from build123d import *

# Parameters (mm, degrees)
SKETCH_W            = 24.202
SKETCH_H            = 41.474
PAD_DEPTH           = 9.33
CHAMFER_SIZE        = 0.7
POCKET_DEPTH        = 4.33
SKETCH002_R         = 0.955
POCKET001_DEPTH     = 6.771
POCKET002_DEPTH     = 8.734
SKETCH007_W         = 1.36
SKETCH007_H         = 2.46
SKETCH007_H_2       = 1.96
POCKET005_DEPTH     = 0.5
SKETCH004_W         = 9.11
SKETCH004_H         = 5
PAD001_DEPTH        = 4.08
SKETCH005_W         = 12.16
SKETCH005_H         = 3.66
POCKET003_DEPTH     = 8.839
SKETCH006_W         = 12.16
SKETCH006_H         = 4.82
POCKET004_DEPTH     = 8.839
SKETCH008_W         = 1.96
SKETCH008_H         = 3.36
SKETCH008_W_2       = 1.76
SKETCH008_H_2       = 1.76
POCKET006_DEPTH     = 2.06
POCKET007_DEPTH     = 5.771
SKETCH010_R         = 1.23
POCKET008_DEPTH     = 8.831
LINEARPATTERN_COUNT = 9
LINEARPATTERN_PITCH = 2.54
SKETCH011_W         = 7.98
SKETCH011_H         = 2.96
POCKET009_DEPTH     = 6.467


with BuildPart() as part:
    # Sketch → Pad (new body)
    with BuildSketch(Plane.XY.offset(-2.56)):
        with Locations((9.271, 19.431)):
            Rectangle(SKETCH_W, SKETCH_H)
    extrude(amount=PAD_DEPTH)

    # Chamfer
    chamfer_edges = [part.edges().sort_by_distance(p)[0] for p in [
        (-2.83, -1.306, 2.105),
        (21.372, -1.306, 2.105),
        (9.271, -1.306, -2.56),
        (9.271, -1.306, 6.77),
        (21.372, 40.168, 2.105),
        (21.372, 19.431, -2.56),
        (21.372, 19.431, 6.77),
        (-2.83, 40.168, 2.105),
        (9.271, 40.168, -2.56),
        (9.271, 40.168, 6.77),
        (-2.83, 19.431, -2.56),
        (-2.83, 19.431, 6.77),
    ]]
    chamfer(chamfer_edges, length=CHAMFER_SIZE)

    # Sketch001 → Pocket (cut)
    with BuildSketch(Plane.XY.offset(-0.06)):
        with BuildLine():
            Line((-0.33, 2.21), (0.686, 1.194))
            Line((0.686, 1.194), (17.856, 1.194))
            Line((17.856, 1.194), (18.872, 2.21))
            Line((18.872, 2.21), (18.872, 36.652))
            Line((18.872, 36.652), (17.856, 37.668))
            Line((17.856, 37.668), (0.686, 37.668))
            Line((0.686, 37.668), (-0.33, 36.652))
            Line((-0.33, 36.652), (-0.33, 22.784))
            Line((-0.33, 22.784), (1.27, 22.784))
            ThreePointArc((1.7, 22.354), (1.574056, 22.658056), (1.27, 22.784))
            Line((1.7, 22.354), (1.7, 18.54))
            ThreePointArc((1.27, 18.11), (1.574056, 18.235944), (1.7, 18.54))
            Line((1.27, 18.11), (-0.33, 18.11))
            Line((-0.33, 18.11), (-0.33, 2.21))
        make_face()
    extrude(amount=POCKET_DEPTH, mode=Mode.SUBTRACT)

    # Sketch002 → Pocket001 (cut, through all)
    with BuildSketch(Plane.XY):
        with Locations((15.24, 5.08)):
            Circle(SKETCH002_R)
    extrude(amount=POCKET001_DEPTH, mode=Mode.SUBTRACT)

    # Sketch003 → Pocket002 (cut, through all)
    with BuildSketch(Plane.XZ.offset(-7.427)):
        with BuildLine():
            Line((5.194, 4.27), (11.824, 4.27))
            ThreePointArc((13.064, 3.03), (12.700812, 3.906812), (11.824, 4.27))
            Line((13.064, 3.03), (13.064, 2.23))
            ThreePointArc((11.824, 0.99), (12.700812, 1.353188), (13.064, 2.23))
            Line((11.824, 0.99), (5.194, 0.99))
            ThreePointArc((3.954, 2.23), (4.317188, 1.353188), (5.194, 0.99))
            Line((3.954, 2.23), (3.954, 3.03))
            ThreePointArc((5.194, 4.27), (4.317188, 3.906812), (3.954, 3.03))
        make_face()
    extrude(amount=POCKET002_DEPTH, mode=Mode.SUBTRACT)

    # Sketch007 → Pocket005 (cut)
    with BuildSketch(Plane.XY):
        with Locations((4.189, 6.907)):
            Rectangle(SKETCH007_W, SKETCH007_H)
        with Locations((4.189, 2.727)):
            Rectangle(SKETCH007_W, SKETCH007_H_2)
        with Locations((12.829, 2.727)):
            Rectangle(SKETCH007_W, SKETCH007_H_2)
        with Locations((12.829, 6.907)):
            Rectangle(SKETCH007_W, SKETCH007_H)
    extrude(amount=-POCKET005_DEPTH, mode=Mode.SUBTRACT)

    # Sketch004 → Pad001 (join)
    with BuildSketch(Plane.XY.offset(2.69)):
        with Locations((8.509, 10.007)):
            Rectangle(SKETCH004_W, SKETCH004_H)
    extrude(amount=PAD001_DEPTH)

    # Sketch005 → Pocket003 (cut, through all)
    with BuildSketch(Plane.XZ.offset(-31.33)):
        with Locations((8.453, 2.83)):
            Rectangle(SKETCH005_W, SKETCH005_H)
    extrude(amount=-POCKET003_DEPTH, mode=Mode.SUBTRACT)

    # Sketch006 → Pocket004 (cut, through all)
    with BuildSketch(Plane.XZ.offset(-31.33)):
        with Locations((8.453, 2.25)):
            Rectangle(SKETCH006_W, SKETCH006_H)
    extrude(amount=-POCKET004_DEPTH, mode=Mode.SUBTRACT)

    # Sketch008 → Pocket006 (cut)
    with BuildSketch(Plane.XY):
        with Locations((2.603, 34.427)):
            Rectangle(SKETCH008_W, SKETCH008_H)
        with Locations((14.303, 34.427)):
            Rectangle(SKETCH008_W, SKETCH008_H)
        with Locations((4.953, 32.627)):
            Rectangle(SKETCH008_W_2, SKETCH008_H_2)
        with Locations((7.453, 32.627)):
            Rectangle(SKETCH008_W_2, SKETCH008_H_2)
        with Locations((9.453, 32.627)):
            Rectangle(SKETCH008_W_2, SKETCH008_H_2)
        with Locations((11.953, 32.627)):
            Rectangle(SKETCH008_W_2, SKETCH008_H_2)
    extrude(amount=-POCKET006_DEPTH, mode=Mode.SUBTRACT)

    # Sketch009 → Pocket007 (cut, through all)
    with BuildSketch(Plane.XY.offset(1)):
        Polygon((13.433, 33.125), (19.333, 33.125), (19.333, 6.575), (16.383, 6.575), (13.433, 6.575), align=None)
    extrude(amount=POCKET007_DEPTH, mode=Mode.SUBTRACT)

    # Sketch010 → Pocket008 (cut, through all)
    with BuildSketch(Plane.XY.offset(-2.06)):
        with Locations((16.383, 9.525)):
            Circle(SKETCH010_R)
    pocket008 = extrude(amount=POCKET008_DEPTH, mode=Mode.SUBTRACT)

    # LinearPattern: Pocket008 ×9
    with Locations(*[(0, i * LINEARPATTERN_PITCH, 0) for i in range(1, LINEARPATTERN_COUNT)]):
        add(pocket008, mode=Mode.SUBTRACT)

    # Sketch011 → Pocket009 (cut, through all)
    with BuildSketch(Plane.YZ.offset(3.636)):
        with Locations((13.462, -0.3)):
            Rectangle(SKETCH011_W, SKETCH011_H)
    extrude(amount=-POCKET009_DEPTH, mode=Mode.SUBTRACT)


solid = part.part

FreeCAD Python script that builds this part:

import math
import FreeCAD as App
import Part
import Sketcher
from FreeCAD import Vector

doc = App.newDocument("Part")
body = doc.addObject("PartDesign::Body", "Body")

# Sketch on XY plane
sketch1 = body.newObject("Sketcher::SketchObject", "Sketch")
sketch1.AttachmentSupport = (doc.getObject("XY_Plane"), [""])
sketch1.MapMode = "FlatFace"
sketch1.AttachmentOffset = App.Placement(Vector(0, 0, -2.56), App.Rotation())
sketch1.addGeometry(Part.LineSegment(Vector(-3, 40, 0), Vector(-3, -1, 0)), False)
sketch1.addGeometry(Part.LineSegment(Vector(-3, -1, 0), Vector(21, -1, 0)), False)
sketch1.addGeometry(Part.LineSegment(Vector(21, -1, 0), Vector(21, 40, 0)), False)
sketch1.addGeometry(Part.LineSegment(Vector(21, 40, 0), Vector(-3, 40, 0)), False)
sketch1.addConstraint(Sketcher.Constraint("Coincident", 0, 2, 1, 1))
sketch1.addConstraint(Sketcher.Constraint("Coincident", 1, 2, 2, 1))
sketch1.addConstraint(Sketcher.Constraint("Coincident", 2, 2, 3, 1))
sketch1.addConstraint(Sketcher.Constraint("Coincident", 3, 2, 0, 1))
sketch1.addConstraint(Sketcher.Constraint("Vertical", 0))
sketch1.addConstraint(Sketcher.Constraint("Horizontal", 1))
sketch1.addConstraint(Sketcher.Constraint("Vertical", 2))
sketch1.addConstraint(Sketcher.Constraint("Horizontal", 3))
sketch1.addConstraint(Sketcher.Constraint("DistanceX", 1, 1, 1, 2, 24.202))
sketch1.addConstraint(Sketcher.Constraint("DistanceY", 0, 2, 0, 1, 41.474))
sketch1.addConstraint(Sketcher.Constraint("DistanceX", 0, 2, -1, 1, 2.83))
sketch1.addConstraint(Sketcher.Constraint("DistanceY", 0, 2, -1, 1, 1.306))
pad1 = body.newObject("PartDesign::Pad", "Pad")
pad1.Profile = sketch1
pad1.Length = 9.33
doc.recompute()

chamfer = body.newObject("PartDesign::Chamfer", "Chamfer")
chamfer.Base = (pad1, ["Edge1"])
chamfer.UseAllEdges = True
chamfer.Size = 0.7

# Sketch on XY plane
sketch2 = body.newObject("Sketcher::SketchObject", "Sketch001")
sketch2.AttachmentSupport = (doc.getObject("XY_Plane"), [""])
sketch2.MapMode = "FlatFace"
sketch2.AttachmentOffset = App.Placement(Vector(0, 0, -0.06), App.Rotation())
sketch2.addGeometry(Part.LineSegment(Vector(-0.33, 2.21, 0), Vector(0.69, 1.19, 0)), False)
sketch2.addGeometry(Part.LineSegment(Vector(0.69, 1.19, 0), Vector(17.86, 1.19, 0)), False)
sketch2.addGeometry(Part.LineSegment(Vector(17.86, 1.19, 0), Vector(18.87, 2.21, 0)), False)
sketch2.addGeometry(Part.LineSegment(Vector(18.87, 2.21, 0), Vector(18.87, 36.65, 0)), False)
sketch2.addGeometry(Part.LineSegment(Vector(18.87, 36.65, 0), Vector(17.86, 37.67, 0)), False)
sketch2.addGeometry(Part.LineSegment(Vector(17.86, 37.67, 0), Vector(0.69, 37.67, 0)), False)
sketch2.addGeometry(Part.LineSegment(Vector(0.69, 37.67, 0), Vector(-0.33, 36.65, 0)), False)
sketch2.addGeometry(Part.LineSegment(Vector(-0.33, 36.65, 0), Vector(-0.33, 22.78, 0)), False)
sketch2.addGeometry(Part.LineSegment(Vector(-0.33, 22.78, 0), Vector(1.27, 22.78, 0)), False)
sketch2.addGeometry(Part.ArcOfCircle(Part.Circle(Vector(1.27, 22.35, 0), Vector(0, 0, 1), 0.43), math.radians(0), math.radians(90)), False)
sketch2.addGeometry(Part.LineSegment(Vector(1.7, 22.35, 0), Vector(1.7, 18.54, 0)), False)
sketch2.addGeometry(Part.ArcOfCircle(Part.Circle(Vector(1.27, 18.54, 0), Vector(0, 0, 1), 0.43), math.radians(-90), math.radians(0)), False)
sketch2.addGeometry(Part.LineSegment(Vector(1.27, 18.11, 0), Vector(-0.33, 18.11, 0)), False)
sketch2.addGeometry(Part.LineSegment(Vector(-0.33, 18.11, 0), Vector(-0.33, 2.21, 0)), False)
sketch2.addConstraint(Sketcher.Constraint("Coincident", 0, 2, 1, 1))
sketch2.addConstraint(Sketcher.Constraint("Coincident", 1, 2, 2, 1))
sketch2.addConstraint(Sketcher.Constraint("Coincident", 2, 2, 3, 1))
sketch2.addConstraint(Sketcher.Constraint("Coincident", 3, 2, 4, 1))
sketch2.addConstraint(Sketcher.Constraint("Coincident", 4, 2, 5, 1))
sketch2.addConstraint(Sketcher.Constraint("Coincident", 5, 2, 6, 1))
sketch2.addConstraint(Sketcher.Constraint("Coincident", 6, 2, 7, 1))
sketch2.addConstraint(Sketcher.Constraint("Coincident", 7, 2, 8, 1))
sketch2.addConstraint(Sketcher.Constraint("Tangent", 8, 2, 9, 2))
sketch2.addConstraint(Sketcher.Constraint("Tangent", 9, 1, 10, 1))
sketch2.addConstraint(Sketcher.Constraint("Tangent", 10, 2, 11, 2))
sketch2.addConstraint(Sketcher.Constraint("Tangent", 11, 1, 12, 1))
sketch2.addConstraint(Sketcher.Constraint("Coincident", 12, 2, 13, 1))
sketch2.addConstraint(Sketcher.Constraint("Coincident", 13, 2, 0, 1))
sketch2.addConstraint(Sketcher.Constraint("Horizontal", 1))
sketch2.addConstraint(Sketcher.Constraint("Vertical", 3))
sketch2.addConstraint(Sketcher.Constraint("Horizontal", 5))
sketch2.addConstraint(Sketcher.Constraint("Vertical", 7))
sketch2.addConstraint(Sketcher.Constraint("Horizontal", 8))
sketch2.addConstraint(Sketcher.Constraint("Vertical", 10))
sketch2.addConstraint(Sketcher.Constraint("Horizontal", 12))
sketch2.addConstraint(Sketcher.Constraint("Vertical", 13))
sketch2.addConstraint(Sketcher.Constraint("Equal", 9, 11))
sketch2.addConstraint(Sketcher.Constraint("Perpendicular", 0, 2))
sketch2.addConstraint(Sketcher.Constraint("Perpendicular", 2, 4))
sketch2.addConstraint(Sketcher.Constraint("Perpendicular", 4, 6))
sketch2.addConstraint(Sketcher.Constraint("Horizontal", 3, 2, 6, 2))
sketch2.addConstraint(Sketcher.Constraint("Horizontal", 2, 2, 13, 2))
sketch2.addConstraint(Sketcher.Constraint("Vertical", 1, 2, 4, 2))
sketch2.addConstraint(Sketcher.Constraint("Vertical", 0, 2, 5, 2))
sketch2.addConstraint(Sketcher.Constraint("Vertical", 7, 2, 12, 2))
sketch2.addConstraint(Sketcher.Constraint("Radius", 9, 0.43))
sketch2.addConstraint(Sketcher.Constraint("DistanceX", 8, 1, 8, 2, 1.6))
sketch2.addConstraint(Sketcher.Constraint("DistanceY", 13, 2, 13, 1, 15.9))
sketch2.addConstraint(Sketcher.Constraint("DistanceX", 1, 1, 1, 2, 17.17))
sketch2.addConstraint(Sketcher.Constraint("DistanceX", -1, 1, 9, 1, 1.7))
sketch2.addConstraint(Sketcher.Constraint("DistanceY", 3, 1, 3, 2, 34.442))
sketch2.addConstraint(Sketcher.Constraint("DistanceY", 7, 2, 7, 1, 13.868))
sketch2.addConstraint(Sketcher.Constraint("DistanceY", -1, 1, 11, 3, 18.54))
sketch2.addConstraint(Sketcher.Constraint("DistanceY", 0, 2, 9, 3, 21.16))
pocket1 = body.newObject("PartDesign::Pocket", "Pocket")
pocket1.Profile = sketch2
pocket1.Length = 4.33
pocket1.Reversed = True

# Sketch on XY plane
sketch3 = body.newObject("Sketcher::SketchObject", "Sketch002")
sketch3.AttachmentSupport = (doc.getObject("XY_Plane"), [""])
sketch3.MapMode = "FlatFace"
sketch3.addGeometry(Part.Circle(Vector(15.2, 5.1, 0), Vector(0, 0, 1), 1), False)
sketch3.addConstraint(Sketcher.Constraint("Diameter", 0, 1.91))
sketch3.addConstraint(Sketcher.Constraint("DistanceX", -1, 1, 0, 3, 15.24))
sketch3.addConstraint(Sketcher.Constraint("DistanceY", -1, 1, 0, 3, 5.08))
pocket2 = body.newObject("PartDesign::Pocket", "Pocket001")
pocket2.Profile = sketch3
pocket2.Type = "ThroughAll"
pocket2.Reversed = True

# Sketch on XZ plane
sketch4 = body.newObject("Sketcher::SketchObject", "Sketch003")
sketch4.AttachmentSupport = (doc.getObject("XZ_Plane"), [""])
sketch4.MapMode = "FlatFace"
sketch4.AttachmentOffset = App.Placement(Vector(0, 0, -7.427), App.Rotation())
sketch4.addGeometry(Part.LineSegment(Vector(11.8, 4.3, 0), Vector(5.2, 4.3, 0)), False)
sketch4.addGeometry(Part.ArcOfCircle(Part.Circle(Vector(5.2, 3, 0), Vector(0, 0, 1), 1.2), math.radians(90), math.radians(180)), False)
sketch4.addGeometry(Part.LineSegment(Vector(4, 3, 0), Vector(4, 2.2, 0)), False)
sketch4.addGeometry(Part.ArcOfCircle(Part.Circle(Vector(5.2, 2.2, 0), Vector(0, 0, 1), 1.2), math.radians(-180), math.radians(-90)), False)
sketch4.addGeometry(Part.LineSegment(Vector(5.2, 1, 0), Vector(11.8, 1, 0)), False)
sketch4.addGeometry(Part.ArcOfCircle(Part.Circle(Vector(11.8, 2.2, 0), Vector(0, 0, 1), 1.2), math.radians(-90), math.radians(0)), False)
sketch4.addGeometry(Part.LineSegment(Vector(13.1, 2.2, 0), Vector(13.1, 3, 0)), False)
sketch4.addGeometry(Part.ArcOfCircle(Part.Circle(Vector(11.8, 3, 0), Vector(0, 0, 1), 1.2), math.radians(0), math.radians(90)), False)
sketch4.addConstraint(Sketcher.Constraint("Tangent", 0, 2, 1, 1))
sketch4.addConstraint(Sketcher.Constraint("Tangent", 1, 2, 2, 1))
sketch4.addConstraint(Sketcher.Constraint("Tangent", 2, 2, 3, 1))
sketch4.addConstraint(Sketcher.Constraint("Tangent", 3, 2, 4, 1))
sketch4.addConstraint(Sketcher.Constraint("Tangent", 4, 2, 5, 1))
sketch4.addConstraint(Sketcher.Constraint("Tangent", 5, 2, 6, 1))
sketch4.addConstraint(Sketcher.Constraint("Tangent", 6, 2, 7, 1))
sketch4.addConstraint(Sketcher.Constraint("Tangent", 7, 2, 0, 1))
sketch4.addConstraint(Sketcher.Constraint("Horizontal", 0))
sketch4.addConstraint(Sketcher.Constraint("Vertical", 2))
sketch4.addConstraint(Sketcher.Constraint("Horizontal", 4))
sketch4.addConstraint(Sketcher.Constraint("Vertical", 6))
sketch4.addConstraint(Sketcher.Constraint("Equal", 1, 3))
sketch4.addConstraint(Sketcher.Constraint("Equal", 3, 5))
sketch4.addConstraint(Sketcher.Constraint("Equal", 5, 7))
sketch4.addConstraint(Sketcher.Constraint("Radius", 1, 1.240001))
sketch4.addConstraint(Sketcher.Constraint("DistanceY", 2, 2, 2, 1, 0.8))
sketch4.addConstraint(Sketcher.Constraint("DistanceX", 0, 2, 0, 1, 6.63))
sketch4.addConstraint(Sketcher.Constraint("DistanceY", -1, 1, 1, 3, 3.029999))
sketch4.addConstraint(Sketcher.Constraint("DistanceX", -1, 1, 1, 3, 5.194001))
pocket3 = body.newObject("PartDesign::Pocket", "Pocket002")
pocket3.Profile = sketch4
pocket3.Type = "ThroughAll"
pocket3.Reversed = True

# Sketch on XY plane
sketch5 = body.newObject("Sketcher::SketchObject", "Sketch004")
sketch5.AttachmentSupport = (doc.getObject("XY_Plane"), [""])
sketch5.MapMode = "FlatFace"
sketch5.addGeometry(Part.LineSegment(Vector(3.5, 8.1, 0), Vector(3.5, 5.7, 0)), False)
sketch5.addGeometry(Part.LineSegment(Vector(3.5, 5.7, 0), Vector(4.9, 5.7, 0)), False)
sketch5.addGeometry(Part.LineSegment(Vector(4.9, 5.7, 0), Vector(4.9, 8.1, 0)), False)
sketch5.addGeometry(Part.LineSegment(Vector(4.9, 8.1, 0), Vector(3.5, 8.1, 0)), False)
sketch5.addGeometry(Part.LineSegment(Vector(3.5, 3.7, 0), Vector(3.5, 1.7, 0)), False)
sketch5.addGeometry(Part.LineSegment(Vector(3.5, 1.7, 0), Vector(4.9, 1.7, 0)), False)
sketch5.addGeometry(Part.LineSegment(Vector(4.9, 1.7, 0), Vector(4.9, 3.7, 0)), False)
sketch5.addGeometry(Part.LineSegment(Vector(4.9, 3.7, 0), Vector(3.5, 3.7, 0)), False)
sketch5.addGeometry(Part.LineSegment(Vector(12.1, 3.7, 0), Vector(12.1, 1.7, 0)), False)
sketch5.addGeometry(Part.LineSegment(Vector(12.1, 1.7, 0), Vector(13.5, 1.7, 0)), False)
sketch5.addGeometry(Part.LineSegment(Vector(13.5, 1.7, 0), Vector(13.5, 3.7, 0)), False)
sketch5.addGeometry(Part.LineSegment(Vector(13.5, 3.7, 0), Vector(12.1, 3.7, 0)), False)
sketch5.addGeometry(Part.LineSegment(Vector(12.1, 8.1, 0), Vector(12.1, 5.7, 0)), False)
sketch5.addGeometry(Part.LineSegment(Vector(12.1, 5.7, 0), Vector(13.5, 5.7, 0)), False)
sketch5.addGeometry(Part.LineSegment(Vector(13.5, 5.7, 0), Vector(13.5, 8.1, 0)), False)
sketch5.addGeometry(Part.LineSegment(Vector(13.5, 8.1, 0), Vector(12.1, 8.1, 0)), False)
sketch5.addConstraint(Sketcher.Constraint("Coincident", 0, 2, 1, 1))
sketch5.addConstraint(Sketcher.Constraint("Coincident", 1, 2, 2, 1))
sketch5.addConstraint(Sketcher.Constraint("Coincident", 2, 2, 3, 1))
sketch5.addConstraint(Sketcher.Constraint("Coincident", 3, 2, 0, 1))
sketch5.addConstraint(Sketcher.Constraint("Coincident", 4, 2, 5, 1))
sketch5.addConstraint(Sketcher.Constraint("Coincident", 5, 2, 6, 1))
sketch5.addConstraint(Sketcher.Constraint("Coincident", 6, 2, 7, 1))
sketch5.addConstraint(Sketcher.Constraint("Coincident", 7, 2, 4, 1))
sketch5.addConstraint(Sketcher.Constraint("Coincident", 8, 2, 9, 1))
sketch5.addConstraint(Sketcher.Constraint("Coincident", 9, 2, 10, 1))
sketch5.addConstraint(Sketcher.Constraint("Coincident", 10, 2, 11, 1))
sketch5.addConstraint(Sketcher.Constraint("Coincident", 11, 2, 8, 1))
sketch5.addConstraint(Sketcher.Constraint("Coincident", 12, 2, 13, 1))
sketch5.addConstraint(Sketcher.Constraint("Coincident", 13, 2, 14, 1))
sketch5.addConstraint(Sketcher.Constraint("Coincident", 14, 2, 15, 1))
sketch5.addConstraint(Sketcher.Constraint("Coincident", 15, 2, 12, 1))
sketch5.addConstraint(Sketcher.Constraint("Vertical", 0))
sketch5.addConstraint(Sketcher.Constraint("Horizontal", 1))
sketch5.addConstraint(Sketcher.Constraint("Vertical", 2))
sketch5.addConstraint(Sketcher.Constraint("Horizontal", 3))
sketch5.addConstraint(Sketcher.Constraint("Vertical", 4))
sketch5.addConstraint(Sketcher.Constraint("Horizontal", 5))
sketch5.addConstraint(Sketcher.Constraint("Vertical", 6))
sketch5.addConstraint(Sketcher.Constraint("Horizontal", 7))
sketch5.addConstraint(Sketcher.Constraint("Vertical", 8))
sketch5.addConstraint(Sketcher.Constraint("Horizontal", 9))
sketch5.addConstraint(Sketcher.Constraint("Vertical", 10))
sketch5.addConstraint(Sketcher.Constraint("Horizontal", 11))
sketch5.addConstraint(Sketcher.Constraint("Vertical", 12))
sketch5.addConstraint(Sketcher.Constraint("Horizontal", 13))
sketch5.addConstraint(Sketcher.Constraint("Vertical", 14))
sketch5.addConstraint(Sketcher.Constraint("Horizontal", 15))
sketch5.addConstraint(Sketcher.Constraint("Horizontal", 5, 2, 8, 2))
sketch5.addConstraint(Sketcher.Constraint("Horizontal", 7, 2, 10, 2))
sketch5.addConstraint(Sketcher.Constraint("Horizontal", 1, 2, 12, 2))
sketch5.addConstraint(Sketcher.Constraint("Horizontal", 3, 2, 14, 2))
sketch5.addConstraint(Sketcher.Constraint("Vertical", 3, 2, 4, 2))
sketch5.addConstraint(Sketcher.Constraint("Vertical", 2, 2, 5, 2))
sketch5.addConstraint(Sketcher.Constraint("Vertical", 11, 2, 12, 2))
sketch5.addConstraint(Sketcher.Constraint("Vertical", 10, 2, 13, 2))
sketch5.addConstraint(Sketcher.Constraint("Equal", 7, 9))
sketch5.addConstraint(Sketcher.Constraint("DistanceX", 4, 2, 9, 2, 10.0))
sketch5.addConstraint(Sketcher.Constraint("DistanceX", 1, 1, 1, 2, 1.36))
sketch5.addConstraint(Sketcher.Constraint("DistanceY", 0, 2, 0, 1, 2.46))
sketch5.addConstraint(Sketcher.Constraint("DistanceY", 4, 2, 4, 1, 1.96))
sketch5.addConstraint(Sketcher.Constraint("DistanceY", 4, 2, 0, 2, 3.93))
sketch5.addConstraint(Sketcher.Constraint("DistanceX", -1, 1, 0, 2, 3.509))
sketch5.addConstraint(Sketcher.Constraint("DistanceY", -1, 1, 0, 2, 5.677))
pocket4 = body.newObject("PartDesign::Pocket", "Pocket003")
pocket4.Profile = sketch5
pocket4.Length = 0.5

# Sketch on XY plane
sketch6 = body.newObject("Sketcher::SketchObject", "Sketch005")
sketch6.AttachmentSupport = (doc.getObject("XY_Plane"), [""])
sketch6.MapMode = "FlatFace"
sketch6.AttachmentOffset = App.Placement(Vector(0, 0, 2.69), App.Rotation())
sketch6.addGeometry(Part.LineSegment(Vector(4, 13, 0), Vector(4, 8, 0)), False)
sketch6.addGeometry(Part.LineSegment(Vector(4, 8, 0), Vector(13, 8, 0)), False)
sketch6.addGeometry(Part.LineSegment(Vector(13, 8, 0), Vector(13, 13, 0)), False)
sketch6.addGeometry(Part.LineSegment(Vector(13, 13, 0), Vector(4, 13, 0)), False)
sketch6.addConstraint(Sketcher.Constraint("Coincident", 0, 2, 1, 1))
sketch6.addConstraint(Sketcher.Constraint("Coincident", 1, 2, 2, 1))
sketch6.addConstraint(Sketcher.Constraint("Coincident", 2, 2, 3, 1))
sketch6.addConstraint(Sketcher.Constraint("Coincident", 3, 2, 0, 1))
sketch6.addConstraint(Sketcher.Constraint("Vertical", 0))
sketch6.addConstraint(Sketcher.Constraint("Horizontal", 1))
sketch6.addConstraint(Sketcher.Constraint("Vertical", 2))
sketch6.addConstraint(Sketcher.Constraint("Horizontal", 3))
sketch6.addConstraint(Sketcher.Constraint("DistanceY", 0, 2, 0, 1, 5.0))
sketch6.addConstraint(Sketcher.Constraint("DistanceX", 1, 1, 1, 2, 9.11))
sketch6.addConstraint(Sketcher.Constraint("DistanceX", -1, 1, 0, 2, 3.954))
sketch6.addConstraint(Sketcher.Constraint("DistanceY", -1, 1, 0, 2, 7.507))
pad2 = body.newObject("PartDesign::Pad", "Pad001")
pad2.Profile = sketch6
pad2.Length = 4.08

# Sketch on XZ plane
sketch7 = body.newObject("Sketcher::SketchObject", "Sketch006")
sketch7.AttachmentSupport = (doc.getObject("XZ_Plane"), [""])
sketch7.MapMode = "FlatFace"
sketch7.AttachmentOffset = App.Placement(Vector(0, 0, -31.33), App.Rotation())
sketch7.addGeometry(Part.LineSegment(Vector(2.4, 4.7, 0), Vector(2.4, 1, 0)), False)
sketch7.addGeometry(Part.LineSegment(Vector(2.4, 1, 0), Vector(14.5, 1, 0)), False)
sketch7.addGeometry(Part.LineSegment(Vector(14.5, 1, 0), Vector(14.5, 4.7, 0)), False)
sketch7.addGeometry(Part.LineSegment(Vector(14.5, 4.7, 0), Vector(2.4, 4.7, 0)), False)
sketch7.addConstraint(Sketcher.Constraint("Coincident", 0, 2, 1, 1))
sketch7.addConstraint(Sketcher.Constraint("Coincident", 1, 2, 2, 1))
sketch7.addConstraint(Sketcher.Constraint("Coincident", 2, 2, 3, 1))
sketch7.addConstraint(Sketcher.Constraint("Coincident", 3, 2, 0, 1))
sketch7.addConstraint(Sketcher.Constraint("Vertical", 0))
sketch7.addConstraint(Sketcher.Constraint("Horizontal", 1))
sketch7.addConstraint(Sketcher.Constraint("Vertical", 2))
sketch7.addConstraint(Sketcher.Constraint("Horizontal", 3))
sketch7.addConstraint(Sketcher.Constraint("DistanceY", -1, 1, 0, 2, 1.0))
sketch7.addConstraint(Sketcher.Constraint("DistanceX", 1, 1, 1, 2, 12.16))
sketch7.addConstraint(Sketcher.Constraint("DistanceY", 0, 2, 0, 1, 3.66))
sketch7.addConstraint(Sketcher.Constraint("DistanceX", -1, 1, 0, 2, 2.373))
pocket5 = body.newObject("PartDesign::Pocket", "Pocket004")
pocket5.Profile = sketch7
pocket5.Type = "ThroughAll"

# Sketch on XZ plane
sketch8 = body.newObject("Sketcher::SketchObject", "Sketch007")
sketch8.AttachmentSupport = (doc.getObject("XZ_Plane"), [""])
sketch8.MapMode = "FlatFace"
sketch8.AttachmentOffset = App.Placement(Vector(0, 0, -31.33), App.Rotation())
sketch8.addGeometry(Part.LineSegment(Vector(2.4, 4.7, 0), Vector(2.4, -0.2, 0)), False)
sketch8.addGeometry(Part.LineSegment(Vector(2.4, -0.2, 0), Vector(14.5, -0.2, 0)), False)
sketch8.addGeometry(Part.LineSegment(Vector(14.5, -0.2, 0), Vector(14.5, 4.7, 0)), False)
sketch8.addGeometry(Part.LineSegment(Vector(14.5, 4.7, 0), Vector(2.4, 4.7, 0)), False)
sketch8.addConstraint(Sketcher.Constraint("Coincident", 0, 2, 1, 1))
sketch8.addConstraint(Sketcher.Constraint("Coincident", 1, 2, 2, 1))
sketch8.addConstraint(Sketcher.Constraint("Coincident", 2, 2, 3, 1))
sketch8.addConstraint(Sketcher.Constraint("Coincident", 3, 2, 0, 1))
sketch8.addConstraint(Sketcher.Constraint("Vertical", 0))
sketch8.addConstraint(Sketcher.Constraint("Horizontal", 1))
sketch8.addConstraint(Sketcher.Constraint("Vertical", 2))
sketch8.addConstraint(Sketcher.Constraint("Horizontal", 3))
sketch8.addConstraint(Sketcher.Constraint("DistanceX", 1, 1, 1, 2, 12.16))
sketch8.addConstraint(Sketcher.Constraint("DistanceY", 0, 2, 0, 1, 4.82))
sketch8.addConstraint(Sketcher.Constraint("DistanceY", 0, 2, -1, 1, 0.16))
sketch8.addConstraint(Sketcher.Constraint("DistanceX", -1, 1, 0, 2, 2.373))
pocket6 = body.newObject("PartDesign::Pocket", "Pocket005")
pocket6.Profile = sketch8
pocket6.Type = "ThroughAll"

# Sketch on XY plane
sketch9 = body.newObject("Sketcher::SketchObject", "Sketch008")
sketch9.AttachmentSupport = (doc.getObject("XY_Plane"), [""])
sketch9.MapMode = "FlatFace"
sketch9.addGeometry(Part.LineSegment(Vector(1.6, 36.1, 0), Vector(1.6, 32.7, 0)), False)
sketch9.addGeometry(Part.LineSegment(Vector(1.6, 32.7, 0), Vector(3.6, 32.7, 0)), False)
sketch9.addGeometry(Part.LineSegment(Vector(3.6, 32.7, 0), Vector(3.6, 36.1, 0)), False)
sketch9.addGeometry(Part.LineSegment(Vector(3.6, 36.1, 0), Vector(1.6, 36.1, 0)), False)
sketch9.addGeometry(Part.LineSegment(Vector(13.3, 36.1, 0), Vector(13.3, 32.7, 0)), False)
sketch9.addGeometry(Part.LineSegment(Vector(13.3, 32.7, 0), Vector(15.3, 32.7, 0)), False)
sketch9.addGeometry(Part.LineSegment(Vector(15.3, 32.7, 0), Vector(15.3, 36.1, 0)), False)
sketch9.addGeometry(Part.LineSegment(Vector(15.3, 36.1, 0), Vector(13.3, 36.1, 0)), False)
sketch9.addGeometry(Part.LineSegment(Vector(4.1, 33.5, 0), Vector(4.1, 31.7, 0)), False)
sketch9.addGeometry(Part.LineSegment(Vector(4.1, 31.7, 0), Vector(5.8, 31.7, 0)), False)
sketch9.addGeometry(Part.LineSegment(Vector(5.8, 31.7, 0), Vector(5.8, 33.5, 0)), False)
sketch9.addGeometry(Part.LineSegment(Vector(5.8, 33.5, 0), Vector(4.1, 33.5, 0)), False)
sketch9.addGeometry(Part.LineSegment(Vector(6.6, 33.5, 0), Vector(6.6, 31.7, 0)), False)
sketch9.addGeometry(Part.LineSegment(Vector(6.6, 31.7, 0), Vector(8.3, 31.7, 0)), False)
sketch9.addGeometry(Part.LineSegment(Vector(8.3, 31.7, 0), Vector(8.3, 33.5, 0)), False)
sketch9.addGeometry(Part.LineSegment(Vector(8.3, 33.5, 0), Vector(6.6, 33.5, 0)), False)
sketch9.addGeometry(Part.LineSegment(Vector(8.6, 33.5, 0), Vector(8.6, 31.7, 0)), False)
sketch9.addGeometry(Part.LineSegment(Vector(8.6, 31.7, 0), Vector(10.3, 31.7, 0)), False)
sketch9.addGeometry(Part.LineSegment(Vector(10.3, 31.7, 0), Vector(10.3, 33.5, 0)), False)
sketch9.addGeometry(Part.LineSegment(Vector(10.3, 33.5, 0), Vector(8.6, 33.5, 0)), False)
sketch9.addGeometry(Part.LineSegment(Vector(11.1, 33.5, 0), Vector(11.1, 31.7, 0)), False)
sketch9.addGeometry(Part.LineSegment(Vector(11.1, 31.7, 0), Vector(12.8, 31.7, 0)), False)
sketch9.addGeometry(Part.LineSegment(Vector(12.8, 31.7, 0), Vector(12.8, 33.5, 0)), False)
sketch9.addGeometry(Part.LineSegment(Vector(12.8, 33.5, 0), Vector(11.1, 33.5, 0)), False)
sketch9.addConstraint(Sketcher.Constraint("Coincident", 0, 2, 1, 1))
sketch9.addConstraint(Sketcher.Constraint("Coincident", 1, 2, 2, 1))
sketch9.addConstraint(Sketcher.Constraint("Coincident", 2, 2, 3, 1))
sketch9.addConstraint(Sketcher.Constraint("Coincident", 3, 2, 0, 1))
sketch9.addConstraint(Sketcher.Constraint("Coincident", 4, 2, 5, 1))
sketch9.addConstraint(Sketcher.Constraint("Coincident", 5, 2, 6, 1))
sketch9.addConstraint(Sketcher.Constraint("Coincident", 6, 2, 7, 1))
sketch9.addConstraint(Sketcher.Constraint("Coincident", 7, 2, 4, 1))
sketch9.addConstraint(Sketcher.Constraint("Coincident", 8, 2, 9, 1))
sketch9.addConstraint(Sketcher.Constraint("Coincident", 9, 2, 10, 1))
sketch9.addConstraint(Sketcher.Constraint("Coincident", 10, 2, 11, 1))
sketch9.addConstraint(Sketcher.Constraint("Coincident", 11, 2, 8, 1))
sketch9.addConstraint(Sketcher.Constraint("Coincident", 12, 2, 13, 1))
sketch9.addConstraint(Sketcher.Constraint("Coincident", 13, 2, 14, 1))
sketch9.addConstraint(Sketcher.Constraint("Coincident", 14, 2, 15, 1))
sketch9.addConstraint(Sketcher.Constraint("Coincident", 15, 2, 12, 1))
sketch9.addConstraint(Sketcher.Constraint("Coincident", 16, 2, 17, 1))
sketch9.addConstraint(Sketcher.Constraint("Coincident", 17, 2, 18, 1))
sketch9.addConstraint(Sketcher.Constraint("Coincident", 18, 2, 19, 1))
sketch9.addConstraint(Sketcher.Constraint("Coincident", 19, 2, 16, 1))
sketch9.addConstraint(Sketcher.Constraint("Coincident", 20, 2, 21, 1))
sketch9.addConstraint(Sketcher.Constraint("Coincident", 21, 2, 22, 1))
sketch9.addConstraint(Sketcher.Constraint("Coincident", 22, 2, 23, 1))
sketch9.addConstraint(Sketcher.Constraint("Coincident", 23, 2, 20, 1))
sketch9.addConstraint(Sketcher.Constraint("Vertical", 0))
sketch9.addConstraint(Sketcher.Constraint("Horizontal", 1))
sketch9.addConstraint(Sketcher.Constraint("Vertical", 2))
sketch9.addConstraint(Sketcher.Constraint("Horizontal", 3))
sketch9.addConstraint(Sketcher.Constraint("Vertical", 4))
sketch9.addConstraint(Sketcher.Constraint("Horizontal", 5))
sketch9.addConstraint(Sketcher.Constraint("Vertical", 6))
sketch9.addConstraint(Sketcher.Constraint("Horizontal", 7))
sketch9.addConstraint(Sketcher.Constraint("Vertical", 8))
sketch9.addConstraint(Sketcher.Constraint("Horizontal", 9))
sketch9.addConstraint(Sketcher.Constraint("Vertical", 10))
sketch9.addConstraint(Sketcher.Constraint("Horizontal", 11))
sketch9.addConstraint(Sketcher.Constraint("Vertical", 12))
sketch9.addConstraint(Sketcher.Constraint("Horizontal", 13))
sketch9.addConstraint(Sketcher.Constraint("Vertical", 14))
sketch9.addConstraint(Sketcher.Constraint("Horizontal", 15))
sketch9.addConstraint(Sketcher.Constraint("Vertical", 16))
sketch9.addConstraint(Sketcher.Constraint("Horizontal", 17))
sketch9.addConstraint(Sketcher.Constraint("Vertical", 18))
sketch9.addConstraint(Sketcher.Constraint("Horizontal", 19))
sketch9.addConstraint(Sketcher.Constraint("Vertical", 20))
sketch9.addConstraint(Sketcher.Constraint("Horizontal", 21))
sketch9.addConstraint(Sketcher.Constraint("Vertical", 22))
sketch9.addConstraint(Sketcher.Constraint("Horizontal", 23))
sketch9.addConstraint(Sketcher.Constraint("Horizontal", 1, 2, 4, 2))
sketch9.addConstraint(Sketcher.Constraint("Horizontal", 3, 2, 6, 2))
sketch9.addConstraint(Sketcher.Constraint("Horizontal", 9, 2, 12, 2))
sketch9.addConstraint(Sketcher.Constraint("Horizontal", 11, 2, 14, 2))
sketch9.addConstraint(Sketcher.Constraint("Horizontal", 13, 2, 16, 2))
sketch9.addConstraint(Sketcher.Constraint("Horizontal", 15, 2, 18, 2))
sketch9.addConstraint(Sketcher.Constraint("Horizontal", 17, 2, 20, 2))
sketch9.addConstraint(Sketcher.Constraint("Horizontal", 19, 2, 22, 2))
sketch9.addConstraint(Sketcher.Constraint("Equal", 3, 5))
sketch9.addConstraint(Sketcher.Constraint("Equal", 11, 13))
sketch9.addConstraint(Sketcher.Constraint("Equal", 15, 17))
sketch9.addConstraint(Sketcher.Constraint("Equal", 19, 21))
sketch9.addConstraint(Sketcher.Constraint("Equal", 23, 8))
sketch9.addConstraint(Sketcher.Constraint("DistanceY", 8, 2, 1, 2, 1.0))
sketch9.addConstraint(Sketcher.Constraint("DistanceX", 12, 2, 16, 2, 2.0))
sketch9.addConstraint(Sketcher.Constraint("DistanceX", 1, 1, 1, 2, 1.96))
sketch9.addConstraint(Sketcher.Constraint("DistanceX", 9, 1, 9, 2, 1.76))
sketch9.addConstraint(Sketcher.Constraint("DistanceY", 0, 2, 0, 1, 3.36))
sketch9.addConstraint(Sketcher.Constraint("DistanceX", 0, 2, 4, 2, 11.7))
sketch9.addConstraint(Sketcher.Constraint("DistanceX", 8, 2, 12, 2, 2.5))
sketch9.addConstraint(Sketcher.Constraint("DistanceX", 16, 2, 20, 2, 2.5))
sketch9.addConstraint(Sketcher.Constraint("DistanceX", 1, 2, 8, 2, 0.49))
sketch9.addConstraint(Sketcher.Constraint("DistanceX", -1, 1, 0, 2, 1.623))
sketch9.addConstraint(Sketcher.Constraint("DistanceY", -1, 1, 0, 2, 32.747))
pocket7 = body.newObject("PartDesign::Pocket", "Pocket006")
pocket7.Profile = sketch9
pocket7.Length = 2.06

# Sketch on XY plane
sketch10 = body.newObject("Sketcher::SketchObject", "Sketch009")
sketch10.AttachmentSupport = (doc.getObject("XY_Plane"), [""])
sketch10.MapMode = "FlatFace"
sketch10.AttachmentOffset = App.Placement(Vector(0, 0, 1), App.Rotation())
sketch10.addGeometry(Part.LineSegment(Vector(19, 33, 0), Vector(13, 33, 0)), False)
sketch10.addGeometry(Part.LineSegment(Vector(13, 33, 0), Vector(13, 7, 0)), False)
sketch10.addGeometry(Part.LineSegment(Vector(13, 7, 0), Vector(19, 7, 0)), False)
sketch10.addGeometry(Part.LineSegment(Vector(19, 7, 0), Vector(19, 33, 0)), False)
sketch10.addConstraint(Sketcher.Constraint("Coincident", 0, 2, 1, 1))
sketch10.addConstraint(Sketcher.Constraint("Coincident", 1, 2, 2, 1))
sketch10.addConstraint(Sketcher.Constraint("Coincident", 2, 2, 3, 1))
sketch10.addConstraint(Sketcher.Constraint("Coincident", 3, 2, 0, 1))
sketch10.addConstraint(Sketcher.Constraint("Horizontal", 0))
sketch10.addConstraint(Sketcher.Constraint("Vertical", 1))
sketch10.addConstraint(Sketcher.Constraint("Horizontal", 2))
sketch10.addConstraint(Sketcher.Constraint("Vertical", 3))
sketch10.addConstraint(Sketcher.Constraint("DistanceX", 0, 2, 0, 1, 5.9))
sketch10.addConstraint(Sketcher.Constraint("DistanceY", 1, 2, 1, 1, 26.55))
sketch10.addConstraint(Sketcher.Constraint("DistanceX", -1, 1, 0, 2, 13.433))
sketch10.addConstraint(Sketcher.Constraint("DistanceY", -1, 1, 0, 2, 33.125))
pocket8 = body.newObject("PartDesign::Pocket", "Pocket007")
pocket8.Profile = sketch10
pocket8.Type = "ThroughAll"
pocket8.Reversed = True

# Sketch on XY plane
sketch11 = body.newObject("Sketcher::SketchObject", "Sketch010")
sketch11.AttachmentSupport = (doc.getObject("XY_Plane"), [""])
sketch11.MapMode = "FlatFace"
sketch11.AttachmentOffset = App.Placement(Vector(0, 0, -2.06), App.Rotation())
sketch11.addGeometry(Part.Circle(Vector(16.4, 9.5, 0), Vector(0, 0, 1), 1.2), False)
sketch11.addConstraint(Sketcher.Constraint("Diameter", 0, 2.46))
sketch11.addConstraint(Sketcher.Constraint("DistanceX", -1, 1, 0, 3, 16.383))
sketch11.addConstraint(Sketcher.Constraint("DistanceY", -1, 1, 0, 3, 9.525))
pocket9 = body.newObject("PartDesign::Pocket", "Pocket008")
pocket9.Profile = sketch11
pocket9.Type = "ThroughAll"
pocket9.Reversed = True
doc.recompute()

linearpattern = body.newObject("PartDesign::LinearPattern", "LinearPattern")
linearpattern.Originals = [pocket9]
linearpattern.Direction = (doc.getObject("Y_Axis"), [""])
linearpattern.Mode = "offset"
linearpattern.Offset = 2.54
linearpattern.Occurrences = 9
body.Tip = linearpattern

# Sketch on YZ plane
sketch12 = body.newObject("Sketcher::SketchObject", "Sketch011")
sketch12.AttachmentSupport = (doc.getObject("YZ_Plane"), [""])
sketch12.MapMode = "FlatFace"
sketch12.AttachmentOffset = App.Placement(Vector(0, 0, 3.636), App.Rotation())
sketch12.addGeometry(Part.LineSegment(Vector(9.5, 1.2, 0), Vector(9.5, -1.8, 0)), False)
sketch12.addGeometry(Part.LineSegment(Vector(9.5, -1.8, 0), Vector(17.5, -1.8, 0)), False)
sketch12.addGeometry(Part.LineSegment(Vector(17.5, -1.8, 0), Vector(17.5, 1.2, 0)), False)
sketch12.addGeometry(Part.LineSegment(Vector(17.5, 1.2, 0), Vector(9.5, 1.2, 0)), False)
sketch12.addConstraint(Sketcher.Constraint("Coincident", 0, 2, 1, 1))
sketch12.addConstraint(Sketcher.Constraint("Coincident", 1, 2, 2, 1))
sketch12.addConstraint(Sketcher.Constraint("Coincident", 2, 2, 3, 1))
sketch12.addConstraint(Sketcher.Constraint("Coincident", 3, 2, 0, 1))
sketch12.addConstraint(Sketcher.Constraint("Vertical", 0))
sketch12.addConstraint(Sketcher.Constraint("Horizontal", 1))
sketch12.addConstraint(Sketcher.Constraint("Vertical", 2))
sketch12.addConstraint(Sketcher.Constraint("Horizontal", 3))
sketch12.addConstraint(Sketcher.Constraint("DistanceX", 1, 1, 1, 2, 7.98))
sketch12.addConstraint(Sketcher.Constraint("DistanceY", 0, 2, 0, 1, 2.96))
sketch12.addConstraint(Sketcher.Constraint("DistanceY", 0, 2, -1, 1, 1.78))
sketch12.addConstraint(Sketcher.Constraint("DistanceX", -1, 1, 0, 2, 9.472))
pocket10 = body.newObject("PartDesign::Pocket", "Pocket009")
pocket10.Profile = sketch12
pocket10.Type = "ThroughAll"

doc.recompute()
